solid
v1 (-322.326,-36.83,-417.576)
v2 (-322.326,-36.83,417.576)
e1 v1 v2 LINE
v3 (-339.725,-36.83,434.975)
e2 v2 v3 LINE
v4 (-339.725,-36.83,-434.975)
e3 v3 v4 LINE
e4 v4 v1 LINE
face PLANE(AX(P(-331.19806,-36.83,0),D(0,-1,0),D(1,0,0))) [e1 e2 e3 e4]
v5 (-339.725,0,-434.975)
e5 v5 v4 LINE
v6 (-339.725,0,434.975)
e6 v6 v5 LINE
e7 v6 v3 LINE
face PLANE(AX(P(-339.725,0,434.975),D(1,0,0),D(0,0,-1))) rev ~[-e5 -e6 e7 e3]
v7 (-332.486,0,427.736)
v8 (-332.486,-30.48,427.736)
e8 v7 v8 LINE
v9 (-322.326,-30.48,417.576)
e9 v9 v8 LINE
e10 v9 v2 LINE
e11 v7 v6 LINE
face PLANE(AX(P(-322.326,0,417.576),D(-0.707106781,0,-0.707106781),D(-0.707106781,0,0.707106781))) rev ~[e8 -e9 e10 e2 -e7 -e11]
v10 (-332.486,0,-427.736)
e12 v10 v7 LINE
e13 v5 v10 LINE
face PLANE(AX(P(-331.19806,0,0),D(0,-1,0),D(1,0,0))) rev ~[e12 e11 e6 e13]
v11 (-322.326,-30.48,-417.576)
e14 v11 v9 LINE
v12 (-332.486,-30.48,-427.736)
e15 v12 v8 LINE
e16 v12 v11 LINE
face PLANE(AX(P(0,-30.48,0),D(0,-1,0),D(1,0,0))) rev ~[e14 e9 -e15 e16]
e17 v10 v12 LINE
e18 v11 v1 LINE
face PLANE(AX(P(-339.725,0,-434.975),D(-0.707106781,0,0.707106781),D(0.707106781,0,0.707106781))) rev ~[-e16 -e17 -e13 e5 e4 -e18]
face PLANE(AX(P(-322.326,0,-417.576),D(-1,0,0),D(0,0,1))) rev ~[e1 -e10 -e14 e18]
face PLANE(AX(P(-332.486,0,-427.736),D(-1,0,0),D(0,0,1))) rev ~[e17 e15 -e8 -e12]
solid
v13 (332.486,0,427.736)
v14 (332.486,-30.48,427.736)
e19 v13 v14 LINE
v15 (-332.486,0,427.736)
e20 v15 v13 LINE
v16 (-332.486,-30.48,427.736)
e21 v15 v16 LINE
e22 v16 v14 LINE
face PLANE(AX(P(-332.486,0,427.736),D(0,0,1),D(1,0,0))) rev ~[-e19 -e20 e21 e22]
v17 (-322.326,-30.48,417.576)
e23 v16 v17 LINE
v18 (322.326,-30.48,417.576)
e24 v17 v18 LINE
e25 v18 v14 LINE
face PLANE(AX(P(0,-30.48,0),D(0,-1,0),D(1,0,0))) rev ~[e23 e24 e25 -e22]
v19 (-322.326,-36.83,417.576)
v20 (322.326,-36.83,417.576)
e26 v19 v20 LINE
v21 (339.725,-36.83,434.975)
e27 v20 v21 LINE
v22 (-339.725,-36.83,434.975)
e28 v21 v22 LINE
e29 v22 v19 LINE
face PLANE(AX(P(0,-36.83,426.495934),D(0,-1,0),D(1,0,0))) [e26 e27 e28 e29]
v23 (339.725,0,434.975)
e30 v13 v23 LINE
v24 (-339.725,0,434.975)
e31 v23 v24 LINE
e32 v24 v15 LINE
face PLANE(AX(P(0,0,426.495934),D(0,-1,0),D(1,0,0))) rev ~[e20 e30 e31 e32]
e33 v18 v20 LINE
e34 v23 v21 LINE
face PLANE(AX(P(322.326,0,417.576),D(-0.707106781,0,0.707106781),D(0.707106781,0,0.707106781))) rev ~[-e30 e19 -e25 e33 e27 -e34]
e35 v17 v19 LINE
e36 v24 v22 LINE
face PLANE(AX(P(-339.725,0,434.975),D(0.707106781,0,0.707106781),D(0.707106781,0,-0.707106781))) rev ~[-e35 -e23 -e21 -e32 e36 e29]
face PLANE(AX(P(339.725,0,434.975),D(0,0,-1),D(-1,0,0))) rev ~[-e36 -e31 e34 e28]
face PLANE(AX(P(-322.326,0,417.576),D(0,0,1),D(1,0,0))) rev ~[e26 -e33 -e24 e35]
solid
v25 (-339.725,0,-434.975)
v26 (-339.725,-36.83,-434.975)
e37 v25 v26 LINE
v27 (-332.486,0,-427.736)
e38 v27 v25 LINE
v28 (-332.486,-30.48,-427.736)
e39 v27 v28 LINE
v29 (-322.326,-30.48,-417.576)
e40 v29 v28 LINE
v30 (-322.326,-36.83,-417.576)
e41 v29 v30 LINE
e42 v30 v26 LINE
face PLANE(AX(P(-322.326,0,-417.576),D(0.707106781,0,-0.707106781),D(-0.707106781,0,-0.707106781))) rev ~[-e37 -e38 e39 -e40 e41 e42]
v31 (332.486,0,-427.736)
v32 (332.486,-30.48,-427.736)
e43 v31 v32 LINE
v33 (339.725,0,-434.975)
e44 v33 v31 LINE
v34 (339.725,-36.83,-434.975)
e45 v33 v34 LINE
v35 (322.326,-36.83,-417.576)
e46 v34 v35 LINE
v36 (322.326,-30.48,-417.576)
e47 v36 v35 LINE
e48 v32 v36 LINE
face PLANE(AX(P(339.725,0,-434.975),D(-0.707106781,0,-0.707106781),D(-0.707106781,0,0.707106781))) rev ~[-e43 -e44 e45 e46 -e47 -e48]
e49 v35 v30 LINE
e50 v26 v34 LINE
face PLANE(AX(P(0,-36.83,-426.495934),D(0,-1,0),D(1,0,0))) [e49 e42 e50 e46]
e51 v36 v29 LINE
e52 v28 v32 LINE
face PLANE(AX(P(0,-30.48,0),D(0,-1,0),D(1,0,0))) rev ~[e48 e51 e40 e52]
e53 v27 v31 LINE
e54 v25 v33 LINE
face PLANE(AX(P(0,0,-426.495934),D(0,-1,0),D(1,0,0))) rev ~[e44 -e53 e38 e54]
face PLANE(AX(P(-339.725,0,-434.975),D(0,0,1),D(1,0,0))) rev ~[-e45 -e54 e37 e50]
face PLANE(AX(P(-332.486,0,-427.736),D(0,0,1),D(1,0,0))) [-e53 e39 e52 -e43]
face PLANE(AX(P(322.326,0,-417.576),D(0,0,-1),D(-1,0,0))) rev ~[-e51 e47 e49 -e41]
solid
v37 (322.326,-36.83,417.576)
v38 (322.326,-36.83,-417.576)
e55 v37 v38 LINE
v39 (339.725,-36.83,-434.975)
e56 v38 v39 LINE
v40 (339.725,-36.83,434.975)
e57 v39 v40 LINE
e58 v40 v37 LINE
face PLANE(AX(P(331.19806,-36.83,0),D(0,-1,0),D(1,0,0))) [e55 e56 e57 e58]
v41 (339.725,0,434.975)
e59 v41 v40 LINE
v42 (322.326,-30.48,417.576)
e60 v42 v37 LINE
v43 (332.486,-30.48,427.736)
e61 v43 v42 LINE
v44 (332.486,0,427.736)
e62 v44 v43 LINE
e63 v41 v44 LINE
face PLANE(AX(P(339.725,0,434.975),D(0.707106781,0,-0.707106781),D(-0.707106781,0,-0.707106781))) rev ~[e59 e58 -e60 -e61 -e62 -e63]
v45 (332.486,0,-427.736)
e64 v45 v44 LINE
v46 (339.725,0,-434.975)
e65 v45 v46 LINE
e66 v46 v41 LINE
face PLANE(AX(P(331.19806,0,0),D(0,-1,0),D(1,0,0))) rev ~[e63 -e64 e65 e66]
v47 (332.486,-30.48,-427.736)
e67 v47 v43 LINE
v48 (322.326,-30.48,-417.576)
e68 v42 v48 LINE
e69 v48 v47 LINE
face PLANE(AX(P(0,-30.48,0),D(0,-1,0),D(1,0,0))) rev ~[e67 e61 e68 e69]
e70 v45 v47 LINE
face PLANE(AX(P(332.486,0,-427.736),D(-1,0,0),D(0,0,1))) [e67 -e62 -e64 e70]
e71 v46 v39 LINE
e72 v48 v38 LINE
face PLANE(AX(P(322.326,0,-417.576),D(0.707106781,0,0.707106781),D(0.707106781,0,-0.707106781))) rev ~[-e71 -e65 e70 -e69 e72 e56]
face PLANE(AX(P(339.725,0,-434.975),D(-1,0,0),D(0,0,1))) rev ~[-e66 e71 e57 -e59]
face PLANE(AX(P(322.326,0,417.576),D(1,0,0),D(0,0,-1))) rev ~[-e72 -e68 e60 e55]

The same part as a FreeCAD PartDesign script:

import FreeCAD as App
import Part
import Sketcher

V = App.Vector
Q = App.Units.Quantity


def add_polygon(sketch, points):
    """Adds a closed chain of lines whose ends are joined by coincident constraints."""
    first, n = sketch.GeometryCount, len(points)
    for a, b in zip(points, points[1:] + points[:1]):
        sketch.addGeometry(Part.LineSegment(App.Vector(*a, 0), App.Vector(*b, 0)), False)
    for i in range(n):
        sketch.addConstraint(Sketcher.Constraint("Coincident", first + i, 2, first + (i + 1) % n, 1))

doc = App.newDocument("Part")
body = doc.addObject("PartDesign::Body", "Body")
body.AllowCompound = True

sketch1 = body.newObject("Sketcher::SketchObject", "Sketch")
sketch1.AttachmentSupport = (doc.getObject("XZ_Plane"), [""])
sketch1.MapMode = "FlatFace"
add_polygon(sketch1, [(-340, 435), (-340, -435), (-322, -418), (-322, 418)])
add_polygon(sketch1, [(322, -418), (340, -435), (340, 435), (322, 418)])
sketch1.addConstraint([
    Sketcher.Constraint("Vertical", 0),
    Sketcher.Constraint("Vertical", 2),
    Sketcher.Constraint("Vertical", 5),
    Sketcher.Constraint("Vertical", 7),
    Sketcher.Constraint("Symmetric", 3, 2, 4, 2, -1, 1),
    Sketcher.Constraint("Symmetric", 1, 2, 6, 2, -1, 1),
    Sketcher.Constraint("Perpendicular", 1, 3),
    Sketcher.Constraint("Parallel", 3, 4),
    Sketcher.Constraint("Perpendicular", 4, 6),
    Sketcher.Constraint("Horizontal", 0, 2, 4, 2),
    Sketcher.Constraint("Horizontal", 2, 2, 6, 2),
    Sketcher.Constraint("DistanceY", 0, 2, 0, 1, Q("34.25 in")),
    Sketcher.Constraint("DistanceY", 2, 1, 2, 2, Q("32.88 in")),
    Sketcher.Constraint("DistanceX", 1, 2, -1, 1, Q("12.69 in")),
])
pad1 = body.newObject("PartDesign::Pad", "Pad")
pad1.Profile = sketch1
pad1.Length = Q("1.45 in")
body2 = doc.addObject("PartDesign::Body", "Body001")
body2.AllowCompound = True

sketch2 = body2.newObject("Sketcher::SketchObject", "Sketch001")
sketch2.AttachmentSupport = (doc.getObject("XZ_Plane001"), [""])
sketch2.MapMode = "FlatFace"
add_polygon(sketch2, [(340, 435), (-340, 435), (-322, 418), (322, 418)])
add_polygon(sketch2, [(-322, -418), (-340, -435), (340, -435), (322, -418)])
sketch2.addConstraint([
    Sketcher.Constraint("Horizontal", 0),
    Sketcher.Constraint("Horizontal", 2),
    Sketcher.Constraint("Horizontal", 5),
    Sketcher.Constraint("Horizontal", 7),
    Sketcher.Constraint("Symmetric", 3, 2, 4, 2, -1, 1),
    Sketcher.Constraint("Symmetric", 1, 2, 6, 2, -1, 1),
    Sketcher.Constraint("Perpendicular", 1, 3),
    Sketcher.Constraint("Parallel", 3, 4),
    Sketcher.Constraint("Perpendicular", 4, 6),
    Sketcher.Constraint("Vertical", 0, 2, 4, 2),
    Sketcher.Constraint("Vertical", 2, 2, 6, 2),
    Sketcher.Constraint("DistanceX", 0, 2, 0, 1, Q("26.75 in")),
    Sketcher.Constraint("DistanceX", 2, 1, 2, 2, Q("25.38 in")),
    Sketcher.Constraint("DistanceY", -1, 1, 1, 2, Q("16.44 in")),
])
pad2 = body2.newObject("PartDesign::Pad", "Pad001")
pad2.Profile = sketch2
pad2.Length = Q("1.45 in")
body3 = doc.addObject("PartDesign::Body", "Body002")

sketch3 = body3.newObject("Sketcher::SketchObject", "Sketch002")
sketch3.AttachmentSupport = (doc.getObject("XZ_Plane002"), [""])
sketch3.MapMode = "FlatFace"
add_polygon(sketch3, [(-332, 428), (-332, -428), (332, -428), (332, 428)])
sketch3.addConstraint([
    Sketcher.Constraint("Vertical", 0),
    Sketcher.Constraint("Horizontal", 1),
    Sketcher.Constraint("Vertical", 2),
    Sketcher.Constraint("Horizontal", 3),
    Sketcher.Constraint("Symmetric", 0, 2, 2, 2, -1, 1),
    Sketcher.Constraint("DistanceX", 1, 1, 1, 2, Q("26.18 in")),
    Sketcher.Constraint("DistanceY", 0, 2, 0, 1, Q("33.68 in")),
])
pad3 = body3.newObject("PartDesign::Pad", "Pad002")
pad3.Profile = sketch3
pad3.Length = Q("1.2 in")
body.AllowCompound = True
doc.recompute()

body4 = doc.addObject("PartDesign::Body", "Body003")
body4.BaseFeature = body3
boolean = body.newObject("PartDesign::Boolean", "Boolean")
boolean.Type = "Cut"
boolean.addObjects([body4])
doc.recompute()
body2.AllowCompound = True
doc.recompute()

boolean2 = body2.newObject("PartDesign::Boolean", "Boolean001")
boolean2.Type = "Cut"
boolean2.addObjects([body3])

doc.recompute()
